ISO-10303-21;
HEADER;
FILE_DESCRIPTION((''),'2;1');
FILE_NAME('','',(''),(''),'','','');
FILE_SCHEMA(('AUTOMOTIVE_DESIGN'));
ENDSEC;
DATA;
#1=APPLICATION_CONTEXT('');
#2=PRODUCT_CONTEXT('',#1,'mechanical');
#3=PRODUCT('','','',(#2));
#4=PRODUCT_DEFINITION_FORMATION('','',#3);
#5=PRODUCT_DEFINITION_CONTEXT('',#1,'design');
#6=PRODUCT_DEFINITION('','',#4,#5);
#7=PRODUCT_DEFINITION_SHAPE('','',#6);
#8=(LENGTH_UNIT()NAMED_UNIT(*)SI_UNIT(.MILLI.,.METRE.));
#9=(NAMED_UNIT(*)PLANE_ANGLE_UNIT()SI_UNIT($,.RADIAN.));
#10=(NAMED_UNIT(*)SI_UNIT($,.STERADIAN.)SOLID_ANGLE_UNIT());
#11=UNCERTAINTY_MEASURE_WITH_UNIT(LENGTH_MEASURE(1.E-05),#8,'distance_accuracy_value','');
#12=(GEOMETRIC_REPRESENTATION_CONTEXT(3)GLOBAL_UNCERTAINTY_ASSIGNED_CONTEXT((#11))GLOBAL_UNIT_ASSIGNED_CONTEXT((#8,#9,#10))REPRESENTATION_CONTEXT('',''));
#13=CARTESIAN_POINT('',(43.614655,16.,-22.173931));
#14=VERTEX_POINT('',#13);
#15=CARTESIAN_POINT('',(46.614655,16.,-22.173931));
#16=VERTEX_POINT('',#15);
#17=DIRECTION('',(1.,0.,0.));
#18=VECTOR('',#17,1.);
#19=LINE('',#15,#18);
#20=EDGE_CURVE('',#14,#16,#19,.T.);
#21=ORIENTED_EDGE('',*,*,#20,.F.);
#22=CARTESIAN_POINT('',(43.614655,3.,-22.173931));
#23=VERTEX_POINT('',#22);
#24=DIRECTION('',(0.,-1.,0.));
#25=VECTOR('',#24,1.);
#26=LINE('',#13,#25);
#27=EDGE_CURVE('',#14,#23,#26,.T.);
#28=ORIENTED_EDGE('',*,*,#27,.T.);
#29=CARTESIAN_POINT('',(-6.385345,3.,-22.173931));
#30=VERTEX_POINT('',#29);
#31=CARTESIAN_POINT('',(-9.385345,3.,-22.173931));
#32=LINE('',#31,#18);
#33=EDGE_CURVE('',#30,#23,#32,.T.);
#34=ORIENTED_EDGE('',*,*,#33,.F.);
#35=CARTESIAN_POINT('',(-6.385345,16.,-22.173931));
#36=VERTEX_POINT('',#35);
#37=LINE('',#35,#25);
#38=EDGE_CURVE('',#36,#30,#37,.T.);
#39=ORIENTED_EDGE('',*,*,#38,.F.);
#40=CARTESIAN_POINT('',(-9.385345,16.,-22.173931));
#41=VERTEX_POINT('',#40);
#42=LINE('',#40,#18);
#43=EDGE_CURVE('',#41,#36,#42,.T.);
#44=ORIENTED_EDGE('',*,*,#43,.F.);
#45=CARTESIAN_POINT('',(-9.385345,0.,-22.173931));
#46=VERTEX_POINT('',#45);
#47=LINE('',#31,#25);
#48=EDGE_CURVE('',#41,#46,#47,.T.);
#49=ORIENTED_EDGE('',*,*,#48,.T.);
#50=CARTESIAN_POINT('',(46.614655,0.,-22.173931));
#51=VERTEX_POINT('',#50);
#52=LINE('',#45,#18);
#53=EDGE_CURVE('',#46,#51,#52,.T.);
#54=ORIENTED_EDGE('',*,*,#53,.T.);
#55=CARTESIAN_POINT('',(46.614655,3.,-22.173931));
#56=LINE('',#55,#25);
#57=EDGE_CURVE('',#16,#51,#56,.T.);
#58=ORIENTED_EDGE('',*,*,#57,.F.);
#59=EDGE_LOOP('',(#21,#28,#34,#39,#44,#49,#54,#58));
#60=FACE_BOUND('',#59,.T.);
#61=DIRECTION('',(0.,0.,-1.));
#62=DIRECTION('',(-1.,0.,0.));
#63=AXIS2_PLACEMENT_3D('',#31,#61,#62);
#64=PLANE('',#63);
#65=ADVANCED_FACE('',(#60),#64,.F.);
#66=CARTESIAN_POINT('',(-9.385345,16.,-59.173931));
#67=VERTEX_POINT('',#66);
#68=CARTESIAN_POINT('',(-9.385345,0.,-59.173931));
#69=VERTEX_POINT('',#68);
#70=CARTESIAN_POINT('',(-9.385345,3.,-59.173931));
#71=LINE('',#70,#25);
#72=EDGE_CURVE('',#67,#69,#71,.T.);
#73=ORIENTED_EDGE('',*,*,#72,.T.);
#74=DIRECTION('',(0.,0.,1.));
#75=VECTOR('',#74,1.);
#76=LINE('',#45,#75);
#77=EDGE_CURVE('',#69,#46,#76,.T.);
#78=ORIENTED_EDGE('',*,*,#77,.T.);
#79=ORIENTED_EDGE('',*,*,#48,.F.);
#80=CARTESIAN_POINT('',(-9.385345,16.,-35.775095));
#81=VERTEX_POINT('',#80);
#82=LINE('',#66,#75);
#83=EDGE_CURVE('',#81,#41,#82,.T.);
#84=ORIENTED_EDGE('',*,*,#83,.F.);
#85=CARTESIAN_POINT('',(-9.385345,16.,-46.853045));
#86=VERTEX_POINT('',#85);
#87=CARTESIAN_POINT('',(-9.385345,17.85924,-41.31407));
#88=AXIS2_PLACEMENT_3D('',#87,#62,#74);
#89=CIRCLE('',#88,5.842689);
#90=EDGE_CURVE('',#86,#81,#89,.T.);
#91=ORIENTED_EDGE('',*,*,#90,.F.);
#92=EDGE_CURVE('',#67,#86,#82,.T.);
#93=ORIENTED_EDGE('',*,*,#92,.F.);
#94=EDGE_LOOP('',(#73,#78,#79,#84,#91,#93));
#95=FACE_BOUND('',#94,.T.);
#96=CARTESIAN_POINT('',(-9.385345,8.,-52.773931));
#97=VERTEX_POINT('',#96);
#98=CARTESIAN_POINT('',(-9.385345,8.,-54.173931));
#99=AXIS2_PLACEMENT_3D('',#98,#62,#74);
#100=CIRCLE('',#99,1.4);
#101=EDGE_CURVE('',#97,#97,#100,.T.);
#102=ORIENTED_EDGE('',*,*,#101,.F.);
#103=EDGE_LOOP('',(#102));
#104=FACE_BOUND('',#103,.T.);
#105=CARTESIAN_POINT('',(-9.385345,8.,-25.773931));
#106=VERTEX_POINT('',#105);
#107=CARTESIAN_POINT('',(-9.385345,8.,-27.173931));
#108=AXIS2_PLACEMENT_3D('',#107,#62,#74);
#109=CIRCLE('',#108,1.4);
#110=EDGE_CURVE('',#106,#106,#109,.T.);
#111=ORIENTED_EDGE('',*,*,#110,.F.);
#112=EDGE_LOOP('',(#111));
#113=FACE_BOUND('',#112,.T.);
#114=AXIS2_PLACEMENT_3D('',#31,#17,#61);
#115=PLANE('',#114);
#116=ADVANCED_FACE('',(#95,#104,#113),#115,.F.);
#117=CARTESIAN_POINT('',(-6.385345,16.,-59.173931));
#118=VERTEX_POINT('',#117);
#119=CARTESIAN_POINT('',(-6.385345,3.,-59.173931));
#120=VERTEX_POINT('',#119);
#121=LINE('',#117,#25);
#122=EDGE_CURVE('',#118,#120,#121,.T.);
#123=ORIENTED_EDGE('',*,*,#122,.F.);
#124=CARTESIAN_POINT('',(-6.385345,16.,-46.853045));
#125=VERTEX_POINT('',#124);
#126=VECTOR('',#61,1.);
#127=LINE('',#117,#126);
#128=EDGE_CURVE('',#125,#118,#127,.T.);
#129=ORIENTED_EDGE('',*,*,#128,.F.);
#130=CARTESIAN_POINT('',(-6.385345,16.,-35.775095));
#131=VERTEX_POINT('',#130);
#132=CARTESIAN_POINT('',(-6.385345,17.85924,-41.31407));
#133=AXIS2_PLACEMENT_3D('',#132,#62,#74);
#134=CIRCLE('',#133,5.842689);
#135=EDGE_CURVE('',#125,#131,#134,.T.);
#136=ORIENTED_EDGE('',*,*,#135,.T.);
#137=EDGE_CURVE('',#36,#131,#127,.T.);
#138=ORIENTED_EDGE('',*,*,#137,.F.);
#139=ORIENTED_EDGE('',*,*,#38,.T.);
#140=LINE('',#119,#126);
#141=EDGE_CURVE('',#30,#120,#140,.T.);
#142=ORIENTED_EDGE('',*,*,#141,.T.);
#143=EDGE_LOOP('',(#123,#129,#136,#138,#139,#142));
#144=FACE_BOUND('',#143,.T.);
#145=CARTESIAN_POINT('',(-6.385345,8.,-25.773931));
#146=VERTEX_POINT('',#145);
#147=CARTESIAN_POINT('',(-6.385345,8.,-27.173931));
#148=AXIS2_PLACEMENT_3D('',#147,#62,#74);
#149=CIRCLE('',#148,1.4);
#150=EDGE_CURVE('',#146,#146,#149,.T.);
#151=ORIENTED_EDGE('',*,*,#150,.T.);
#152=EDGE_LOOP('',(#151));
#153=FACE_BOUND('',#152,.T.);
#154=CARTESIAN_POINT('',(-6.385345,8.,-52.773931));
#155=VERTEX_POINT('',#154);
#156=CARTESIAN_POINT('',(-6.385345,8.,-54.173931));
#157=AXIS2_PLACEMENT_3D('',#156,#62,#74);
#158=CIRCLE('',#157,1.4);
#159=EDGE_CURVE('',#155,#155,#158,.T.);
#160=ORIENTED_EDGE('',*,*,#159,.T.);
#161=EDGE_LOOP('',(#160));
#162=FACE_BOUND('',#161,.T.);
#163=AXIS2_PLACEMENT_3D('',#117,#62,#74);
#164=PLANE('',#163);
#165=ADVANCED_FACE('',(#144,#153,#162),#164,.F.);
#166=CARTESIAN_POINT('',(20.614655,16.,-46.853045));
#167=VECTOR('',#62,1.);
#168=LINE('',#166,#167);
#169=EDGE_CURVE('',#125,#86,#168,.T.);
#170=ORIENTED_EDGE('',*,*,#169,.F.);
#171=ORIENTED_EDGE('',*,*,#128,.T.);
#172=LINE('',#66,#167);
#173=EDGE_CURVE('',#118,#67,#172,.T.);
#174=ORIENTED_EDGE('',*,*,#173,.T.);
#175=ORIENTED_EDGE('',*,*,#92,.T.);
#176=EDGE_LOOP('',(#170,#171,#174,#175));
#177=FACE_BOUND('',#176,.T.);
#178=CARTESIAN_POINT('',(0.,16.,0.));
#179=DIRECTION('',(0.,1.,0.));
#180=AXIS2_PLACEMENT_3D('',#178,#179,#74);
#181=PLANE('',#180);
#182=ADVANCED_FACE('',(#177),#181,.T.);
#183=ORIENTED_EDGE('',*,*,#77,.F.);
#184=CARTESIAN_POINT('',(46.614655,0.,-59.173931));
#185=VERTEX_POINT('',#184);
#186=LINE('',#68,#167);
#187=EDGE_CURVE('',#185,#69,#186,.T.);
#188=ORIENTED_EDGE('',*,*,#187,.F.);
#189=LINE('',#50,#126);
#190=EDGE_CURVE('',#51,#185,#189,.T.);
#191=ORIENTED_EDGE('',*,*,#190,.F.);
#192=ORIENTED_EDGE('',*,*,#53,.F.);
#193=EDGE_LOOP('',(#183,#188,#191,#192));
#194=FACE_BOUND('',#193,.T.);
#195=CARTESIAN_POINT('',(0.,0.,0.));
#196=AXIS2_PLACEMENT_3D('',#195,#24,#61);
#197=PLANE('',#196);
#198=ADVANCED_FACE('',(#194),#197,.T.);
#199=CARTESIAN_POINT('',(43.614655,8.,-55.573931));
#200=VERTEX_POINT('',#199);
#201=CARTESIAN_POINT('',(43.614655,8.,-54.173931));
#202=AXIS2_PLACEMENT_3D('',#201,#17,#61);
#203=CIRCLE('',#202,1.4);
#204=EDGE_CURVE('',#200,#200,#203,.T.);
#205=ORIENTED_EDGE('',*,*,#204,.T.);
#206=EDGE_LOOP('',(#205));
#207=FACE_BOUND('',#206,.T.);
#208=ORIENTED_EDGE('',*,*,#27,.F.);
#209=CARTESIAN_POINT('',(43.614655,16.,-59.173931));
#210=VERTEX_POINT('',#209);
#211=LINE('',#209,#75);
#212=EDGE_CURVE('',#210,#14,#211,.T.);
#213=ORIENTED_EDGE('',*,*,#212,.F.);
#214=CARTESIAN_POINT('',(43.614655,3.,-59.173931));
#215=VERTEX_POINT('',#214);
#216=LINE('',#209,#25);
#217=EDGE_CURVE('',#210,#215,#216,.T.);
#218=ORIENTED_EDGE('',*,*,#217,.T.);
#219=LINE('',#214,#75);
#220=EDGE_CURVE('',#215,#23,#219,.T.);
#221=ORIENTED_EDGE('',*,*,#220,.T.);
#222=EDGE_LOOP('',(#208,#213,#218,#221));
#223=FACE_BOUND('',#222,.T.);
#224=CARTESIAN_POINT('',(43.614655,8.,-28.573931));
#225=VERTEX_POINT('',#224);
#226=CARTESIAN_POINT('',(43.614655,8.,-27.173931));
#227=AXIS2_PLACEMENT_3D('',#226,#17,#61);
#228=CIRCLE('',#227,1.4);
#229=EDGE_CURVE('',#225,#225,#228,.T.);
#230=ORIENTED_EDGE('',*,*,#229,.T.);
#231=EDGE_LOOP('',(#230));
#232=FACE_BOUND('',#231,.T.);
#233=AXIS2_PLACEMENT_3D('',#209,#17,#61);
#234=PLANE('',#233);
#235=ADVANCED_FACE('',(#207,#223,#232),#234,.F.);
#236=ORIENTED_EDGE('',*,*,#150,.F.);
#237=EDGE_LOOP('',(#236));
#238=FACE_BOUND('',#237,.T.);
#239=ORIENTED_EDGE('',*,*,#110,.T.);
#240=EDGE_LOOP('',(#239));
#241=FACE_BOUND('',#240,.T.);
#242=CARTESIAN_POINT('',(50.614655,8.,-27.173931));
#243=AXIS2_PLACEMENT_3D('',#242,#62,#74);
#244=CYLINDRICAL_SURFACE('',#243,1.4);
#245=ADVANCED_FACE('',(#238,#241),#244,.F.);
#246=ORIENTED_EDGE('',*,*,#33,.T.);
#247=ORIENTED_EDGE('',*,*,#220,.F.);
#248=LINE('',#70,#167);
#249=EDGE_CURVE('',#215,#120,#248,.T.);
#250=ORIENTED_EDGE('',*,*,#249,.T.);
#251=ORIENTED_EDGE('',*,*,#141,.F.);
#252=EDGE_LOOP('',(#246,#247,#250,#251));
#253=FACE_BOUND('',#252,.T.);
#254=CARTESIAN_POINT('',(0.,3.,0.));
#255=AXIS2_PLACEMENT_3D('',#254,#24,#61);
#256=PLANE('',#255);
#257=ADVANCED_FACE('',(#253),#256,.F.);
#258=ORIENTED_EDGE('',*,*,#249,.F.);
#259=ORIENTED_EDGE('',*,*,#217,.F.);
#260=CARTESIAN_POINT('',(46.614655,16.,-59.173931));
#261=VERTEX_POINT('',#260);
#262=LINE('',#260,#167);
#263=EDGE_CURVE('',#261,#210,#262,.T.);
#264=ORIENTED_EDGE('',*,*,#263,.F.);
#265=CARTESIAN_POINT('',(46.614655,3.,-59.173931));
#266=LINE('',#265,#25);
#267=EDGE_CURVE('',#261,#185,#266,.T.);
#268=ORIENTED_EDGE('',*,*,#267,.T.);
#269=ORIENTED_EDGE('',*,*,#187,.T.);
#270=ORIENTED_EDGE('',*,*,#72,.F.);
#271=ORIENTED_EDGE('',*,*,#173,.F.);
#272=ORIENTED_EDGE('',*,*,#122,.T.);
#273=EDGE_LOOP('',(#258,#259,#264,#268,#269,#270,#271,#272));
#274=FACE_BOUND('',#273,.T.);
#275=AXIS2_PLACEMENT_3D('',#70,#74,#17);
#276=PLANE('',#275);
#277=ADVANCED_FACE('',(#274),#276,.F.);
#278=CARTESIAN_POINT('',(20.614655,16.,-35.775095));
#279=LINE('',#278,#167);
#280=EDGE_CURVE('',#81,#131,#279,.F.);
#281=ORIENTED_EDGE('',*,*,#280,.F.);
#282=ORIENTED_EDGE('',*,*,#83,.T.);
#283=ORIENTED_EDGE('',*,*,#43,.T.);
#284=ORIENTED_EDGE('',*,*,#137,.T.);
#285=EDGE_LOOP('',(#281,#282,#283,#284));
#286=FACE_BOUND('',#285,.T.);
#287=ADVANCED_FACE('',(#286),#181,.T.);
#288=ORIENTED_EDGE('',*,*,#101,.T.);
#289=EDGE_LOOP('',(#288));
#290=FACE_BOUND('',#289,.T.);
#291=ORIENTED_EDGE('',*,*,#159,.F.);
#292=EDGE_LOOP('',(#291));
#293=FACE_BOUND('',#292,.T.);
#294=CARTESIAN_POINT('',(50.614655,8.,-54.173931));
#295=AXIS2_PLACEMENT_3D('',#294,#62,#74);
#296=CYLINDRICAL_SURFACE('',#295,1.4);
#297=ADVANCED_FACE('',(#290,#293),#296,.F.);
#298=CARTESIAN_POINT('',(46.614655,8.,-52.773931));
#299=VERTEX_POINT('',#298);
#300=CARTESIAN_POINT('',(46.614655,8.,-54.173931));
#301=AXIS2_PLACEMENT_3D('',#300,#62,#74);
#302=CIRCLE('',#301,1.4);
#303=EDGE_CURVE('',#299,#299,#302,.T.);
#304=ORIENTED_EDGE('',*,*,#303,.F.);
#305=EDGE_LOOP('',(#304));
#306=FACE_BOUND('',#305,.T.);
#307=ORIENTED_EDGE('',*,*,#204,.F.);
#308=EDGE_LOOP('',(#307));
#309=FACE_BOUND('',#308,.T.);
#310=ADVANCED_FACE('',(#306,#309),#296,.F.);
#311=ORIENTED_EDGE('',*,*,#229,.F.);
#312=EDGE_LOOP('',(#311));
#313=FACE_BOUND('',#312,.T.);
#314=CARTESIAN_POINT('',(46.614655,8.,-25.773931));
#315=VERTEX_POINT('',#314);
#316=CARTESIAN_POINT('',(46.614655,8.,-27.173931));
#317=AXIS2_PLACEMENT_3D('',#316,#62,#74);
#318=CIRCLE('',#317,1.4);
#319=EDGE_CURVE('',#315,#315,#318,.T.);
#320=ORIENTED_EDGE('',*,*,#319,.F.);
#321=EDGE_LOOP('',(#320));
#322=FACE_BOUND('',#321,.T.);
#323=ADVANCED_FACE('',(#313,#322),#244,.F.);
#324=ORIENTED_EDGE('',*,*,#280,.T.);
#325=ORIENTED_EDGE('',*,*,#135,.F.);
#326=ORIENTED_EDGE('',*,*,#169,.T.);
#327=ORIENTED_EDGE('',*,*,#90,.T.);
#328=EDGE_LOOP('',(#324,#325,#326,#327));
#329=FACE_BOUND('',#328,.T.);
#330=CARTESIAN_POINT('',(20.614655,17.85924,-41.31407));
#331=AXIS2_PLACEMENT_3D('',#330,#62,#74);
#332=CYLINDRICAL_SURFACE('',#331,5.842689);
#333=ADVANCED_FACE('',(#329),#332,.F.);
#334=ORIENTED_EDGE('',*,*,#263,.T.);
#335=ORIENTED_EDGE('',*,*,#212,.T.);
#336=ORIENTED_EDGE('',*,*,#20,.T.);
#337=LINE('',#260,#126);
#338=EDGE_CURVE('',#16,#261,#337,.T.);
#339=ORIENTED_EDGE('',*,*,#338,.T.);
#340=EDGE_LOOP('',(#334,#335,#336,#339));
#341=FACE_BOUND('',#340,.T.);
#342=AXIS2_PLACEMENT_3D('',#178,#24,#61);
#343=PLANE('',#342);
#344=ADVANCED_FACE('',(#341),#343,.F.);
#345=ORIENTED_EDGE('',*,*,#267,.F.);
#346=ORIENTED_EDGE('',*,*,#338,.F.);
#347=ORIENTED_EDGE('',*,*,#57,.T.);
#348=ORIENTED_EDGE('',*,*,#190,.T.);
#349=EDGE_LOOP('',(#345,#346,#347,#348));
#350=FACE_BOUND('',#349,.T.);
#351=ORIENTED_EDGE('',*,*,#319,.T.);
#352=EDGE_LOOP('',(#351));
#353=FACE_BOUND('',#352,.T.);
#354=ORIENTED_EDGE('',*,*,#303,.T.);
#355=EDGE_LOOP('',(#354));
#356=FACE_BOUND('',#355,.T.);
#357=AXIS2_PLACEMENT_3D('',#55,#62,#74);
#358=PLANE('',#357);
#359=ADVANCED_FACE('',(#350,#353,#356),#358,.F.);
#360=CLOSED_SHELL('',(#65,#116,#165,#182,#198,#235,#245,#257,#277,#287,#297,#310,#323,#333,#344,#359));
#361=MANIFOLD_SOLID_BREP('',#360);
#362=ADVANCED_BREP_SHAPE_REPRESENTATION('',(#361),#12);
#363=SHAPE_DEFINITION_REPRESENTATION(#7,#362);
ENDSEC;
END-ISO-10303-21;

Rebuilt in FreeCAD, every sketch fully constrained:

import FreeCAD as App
import Part
import Sketcher
Q = App.Units.Quantity

doc = App.newDocument("Part")
body = doc.addObject("PartDesign::Body", "Body")

# Sketch on XZ plane
sketch1 = body.newObject("Sketcher::SketchObject", "Sketch")
sketch1.AttachmentSupport = (doc.getObject("XZ_Plane"), [""])
sketch1.MapMode = "FlatFace"
sketch1.addGeometry(Part.LineSegment(App.Vector(-9, -59, 0), App.Vector(-9, -22, 0)), False)
sketch1.addGeometry(Part.LineSegment(App.Vector(-9, -22, 0), App.Vector(47, -22, 0)), False)
sketch1.addGeometry(Part.LineSegment(App.Vector(47, -22, 0), App.Vector(47, -59, 0)), False)
sketch1.addGeometry(Part.LineSegment(App.Vector(47, -59, 0), App.Vector(-9, -59, 0)), False)
sketch1.addConstraint(Sketcher.Constraint("Coincident", 0, 2, 1, 1))
sketch1.addConstraint(Sketcher.Constraint("Coincident", 1, 2, 2, 1))
sketch1.addConstraint(Sketcher.Constraint("Coincident", 2, 2, 3, 1))
sketch1.addConstraint(Sketcher.Constraint("Coincident", 3, 2, 0, 1))
sketch1.addConstraint(Sketcher.Constraint("Vertical", 0))
sketch1.addConstraint(Sketcher.Constraint("Horizontal", 1))
sketch1.addConstraint(Sketcher.Constraint("Vertical", 2))
sketch1.addConstraint(Sketcher.Constraint("Horizontal", 3))
sketch1.addConstraint(Sketcher.Constraint("DistanceX", 1, 1, 1, 2, Q("56 mm")))
sketch1.addConstraint(Sketcher.Constraint("DistanceY", 0, 1, 0, 2, Q("37 mm")))
sketch1.addConstraint(Sketcher.Constraint("DistanceY", 0, 2, -1, 1, Q("22.173931 mm")))
sketch1.addConstraint(Sketcher.Constraint("DistanceX", 0, 2, -1, 1, Q("9.385345 mm")))
pad1 = body.newObject("PartDesign::Pad", "Pad")
pad1.Profile = sketch1
pad1.Length = 3
pad1.Reversed = True

# Sketch on XZ plane
sketch2 = body.newObject("Sketcher::SketchObject", "Sketch001")
sketch2.AttachmentSupport = (doc.getObject("XZ_Plane"), [""])
sketch2.MapMode = "FlatFace"
sketch2.AttachmentOffset = App.Placement(App.Vector(0, 0, -3), App.Rotation())
sketch2.addGeometry(Part.LineSegment(App.Vector(-9.4, -59.2, 0), App.Vector(-9.4, -22.2, 0)), False)
sketch2.addGeometry(Part.LineSegment(App.Vector(-9.4, -22.2, 0), App.Vector(-6.4, -22.2, 0)), False)
sketch2.addGeometry(Part.LineSegment(App.Vector(-6.4, -22.2, 0), App.Vector(-6.4, -59.2, 0)), False)
sketch2.addGeometry(Part.LineSegment(App.Vector(-6.4, -59.2, 0), App.Vector(-9.4, -59.2, 0)), False)
sketch2.addConstraint(Sketcher.Constraint("Coincident", 0, 2, 1, 1))
sketch2.addConstraint(Sketcher.Constraint("Coincident", 1, 2, 2, 1))
sketch2.addConstraint(Sketcher.Constraint("Coincident", 2, 2, 3, 1))
sketch2.addConstraint(Sketcher.Constraint("Coincident", 3, 2, 0, 1))
sketch2.addConstraint(Sketcher.Constraint("Vertical", 0))
sketch2.addConstraint(Sketcher.Constraint("Horizontal", 1))
sketch2.addConstraint(Sketcher.Constraint("Vertical", 2))
sketch2.addConstraint(Sketcher.Constraint("Horizontal", 3))
sketch2.addConstraint(Sketcher.Constraint("DistanceX", 1, 1, 1, 2, Q("3 mm")))
sketch2.addConstraint(Sketcher.Constraint("DistanceY", 0, 1, 0, 2, Q("37 mm")))
sketch2.addConstraint(Sketcher.Constraint("DistanceY", 0, 2, -1, 1, Q("22.173931 mm")))
sketch2.addConstraint(Sketcher.Constraint("DistanceX", 0, 2, -1, 1, Q("9.385345 mm")))
pad2 = body.newObject("PartDesign::Pad", "Pad001")
pad2.Profile = sketch2
pad2.Length = 13
pad2.Reversed = True

# Sketch on XZ plane
sketch3 = body.newObject("Sketcher::SketchObject", "Sketch002")
sketch3.AttachmentSupport = (doc.getObject("XZ_Plane"), [""])
sketch3.MapMode = "FlatFace"
sketch3.AttachmentOffset = App.Placement(App.Vector(0, 0, -3), App.Rotation())
sketch3.addGeometry(Part.LineSegment(App.Vector(43.6, -59.2, 0), App.Vector(43.6, -22.2, 0)), False)
sketch3.addGeometry(Part.LineSegment(App.Vector(43.6, -22.2, 0), App.Vector(46.6, -22.2, 0)), False)
sketch3.addGeometry(Part.LineSegment(App.Vector(46.6, -22.2, 0), App.Vector(46.6, -59.2, 0)), False)
sketch3.addGeometry(Part.LineSegment(App.Vector(46.6, -59.2, 0), App.Vector(43.6, -59.2, 0)), False)
sketch3.addConstraint(Sketcher.Constraint("Coincident", 0, 2, 1, 1))
sketch3.addConstraint(Sketcher.Constraint("Coincident", 1, 2, 2, 1))
sketch3.addConstraint(Sketcher.Constraint("Coincident", 2, 2, 3, 1))
sketch3.addConstraint(Sketcher.Constraint("Coincident", 3, 2, 0, 1))
sketch3.addConstraint(Sketcher.Constraint("Vertical", 0))
sketch3.addConstraint(Sketcher.Constraint("Horizontal", 1))
sketch3.addConstraint(Sketcher.Constraint("Vertical", 2))
sketch3.addConstraint(Sketcher.Constraint("Horizontal", 3))
sketch3.addConstraint(Sketcher.Constraint("DistanceX", 1, 1, 1, 2, Q("3 mm")))
sketch3.addConstraint(Sketcher.Constraint("DistanceY", 0, 1, 0, 2, Q("37 mm")))
sketch3.addConstraint(Sketcher.Constraint("DistanceY", 0, 2, -1, 1, Q("22.173931 mm")))
sketch3.addConstraint(Sketcher.Constraint("DistanceX", -1, 1, 0, 2, Q("43.614655 mm")))
pad3 = body.newObject("PartDesign::Pad", "Pad002")
pad3.Profile = sketch3
pad3.Length = 13
pad3.Reversed = True

# Sketch on YZ plane
sketch4 = body.newObject("Sketcher::SketchObject", "Sketch003")
sketch4.AttachmentSupport = (doc.getObject("YZ_Plane"), [""])
sketch4.MapMode = "FlatFace"
sketch4.AttachmentOffset = App.Placement(App.Vector(0, 0, -9.385345), App.Rotation())
sketch4.addGeometry(Part.Circle(App.Vector(18, -41, 0), App.Vector(0, 0, 1), 6), False)
sketch4.addConstraint(Sketcher.Constraint("Diameter", 0, Q("11.685379 mm")))
sketch4.addConstraint(Sketcher.Constraint("DistanceX", -1, 1, 0, 3, Q("17.85924 mm")))
sketch4.addConstraint(Sketcher.Constraint("DistanceY", 0, 3, -1, 1, Q("41.31407 mm")))
pocket1 = body.newObject("PartDesign::Pocket", "Pocket")
pocket1.Profile = sketch4
pocket1.Length = 30
pocket1.Reversed = True

# Sketch on YZ plane
sketch5 = body.newObject("Sketcher::SketchObject", "Sketch004")
sketch5.AttachmentSupport = (doc.getObject("YZ_Plane"), [""])
sketch5.MapMode = "FlatFace"
sketch5.AttachmentOffset = App.Placement(App.Vector(0, 0, -9.385345), App.Rotation())
sketch5.addGeometry(Part.Circle(App.Vector(8, -27.2, 0), App.Vector(0, 0, 1), 1.4), False)
sketch5.addConstraint(Sketcher.Constraint("Diameter", 0, Q("2.8 mm")))
sketch5.addConstraint(Sketcher.Constraint("DistanceX", -1, 1, 0, 3, Q("8 mm")))
sketch5.addConstraint(Sketcher.Constraint("DistanceY", 0, 3, -1, 1, Q("27.173931 mm")))
pocket2 = body.newObject("PartDesign::Pocket", "Pocket001")
pocket2.Profile = sketch5
pocket2.Length = 60
pocket2.Reversed = True

# Sketch on YZ plane
sketch6 = body.newObject("Sketcher::SketchObject", "Sketch005")
sketch6.AttachmentSupport = (doc.getObject("YZ_Plane"), [""])
sketch6.MapMode = "FlatFace"
sketch6.AttachmentOffset = App.Placement(App.Vector(0, 0, -9.385345), App.Rotation())
sketch6.addGeometry(Part.Circle(App.Vector(8, -54.2, 0), App.Vector(0, 0, 1), 1.4), False)
sketch6.addConstraint(Sketcher.Constraint("Diameter", 0, Q("2.8 mm")))
sketch6.addConstraint(Sketcher.Constraint("DistanceX", -1, 1, 0, 3, Q("8 mm")))
sketch6.addConstraint(Sketcher.Constraint("DistanceY", 0, 3, -1, 1, Q("54.173931 mm")))
pocket3 = body.newObject("PartDesign::Pocket", "Pocket002")
pocket3.Profile = sketch6
pocket3.Length = 60
pocket3.Reversed = True

doc.recompute()
